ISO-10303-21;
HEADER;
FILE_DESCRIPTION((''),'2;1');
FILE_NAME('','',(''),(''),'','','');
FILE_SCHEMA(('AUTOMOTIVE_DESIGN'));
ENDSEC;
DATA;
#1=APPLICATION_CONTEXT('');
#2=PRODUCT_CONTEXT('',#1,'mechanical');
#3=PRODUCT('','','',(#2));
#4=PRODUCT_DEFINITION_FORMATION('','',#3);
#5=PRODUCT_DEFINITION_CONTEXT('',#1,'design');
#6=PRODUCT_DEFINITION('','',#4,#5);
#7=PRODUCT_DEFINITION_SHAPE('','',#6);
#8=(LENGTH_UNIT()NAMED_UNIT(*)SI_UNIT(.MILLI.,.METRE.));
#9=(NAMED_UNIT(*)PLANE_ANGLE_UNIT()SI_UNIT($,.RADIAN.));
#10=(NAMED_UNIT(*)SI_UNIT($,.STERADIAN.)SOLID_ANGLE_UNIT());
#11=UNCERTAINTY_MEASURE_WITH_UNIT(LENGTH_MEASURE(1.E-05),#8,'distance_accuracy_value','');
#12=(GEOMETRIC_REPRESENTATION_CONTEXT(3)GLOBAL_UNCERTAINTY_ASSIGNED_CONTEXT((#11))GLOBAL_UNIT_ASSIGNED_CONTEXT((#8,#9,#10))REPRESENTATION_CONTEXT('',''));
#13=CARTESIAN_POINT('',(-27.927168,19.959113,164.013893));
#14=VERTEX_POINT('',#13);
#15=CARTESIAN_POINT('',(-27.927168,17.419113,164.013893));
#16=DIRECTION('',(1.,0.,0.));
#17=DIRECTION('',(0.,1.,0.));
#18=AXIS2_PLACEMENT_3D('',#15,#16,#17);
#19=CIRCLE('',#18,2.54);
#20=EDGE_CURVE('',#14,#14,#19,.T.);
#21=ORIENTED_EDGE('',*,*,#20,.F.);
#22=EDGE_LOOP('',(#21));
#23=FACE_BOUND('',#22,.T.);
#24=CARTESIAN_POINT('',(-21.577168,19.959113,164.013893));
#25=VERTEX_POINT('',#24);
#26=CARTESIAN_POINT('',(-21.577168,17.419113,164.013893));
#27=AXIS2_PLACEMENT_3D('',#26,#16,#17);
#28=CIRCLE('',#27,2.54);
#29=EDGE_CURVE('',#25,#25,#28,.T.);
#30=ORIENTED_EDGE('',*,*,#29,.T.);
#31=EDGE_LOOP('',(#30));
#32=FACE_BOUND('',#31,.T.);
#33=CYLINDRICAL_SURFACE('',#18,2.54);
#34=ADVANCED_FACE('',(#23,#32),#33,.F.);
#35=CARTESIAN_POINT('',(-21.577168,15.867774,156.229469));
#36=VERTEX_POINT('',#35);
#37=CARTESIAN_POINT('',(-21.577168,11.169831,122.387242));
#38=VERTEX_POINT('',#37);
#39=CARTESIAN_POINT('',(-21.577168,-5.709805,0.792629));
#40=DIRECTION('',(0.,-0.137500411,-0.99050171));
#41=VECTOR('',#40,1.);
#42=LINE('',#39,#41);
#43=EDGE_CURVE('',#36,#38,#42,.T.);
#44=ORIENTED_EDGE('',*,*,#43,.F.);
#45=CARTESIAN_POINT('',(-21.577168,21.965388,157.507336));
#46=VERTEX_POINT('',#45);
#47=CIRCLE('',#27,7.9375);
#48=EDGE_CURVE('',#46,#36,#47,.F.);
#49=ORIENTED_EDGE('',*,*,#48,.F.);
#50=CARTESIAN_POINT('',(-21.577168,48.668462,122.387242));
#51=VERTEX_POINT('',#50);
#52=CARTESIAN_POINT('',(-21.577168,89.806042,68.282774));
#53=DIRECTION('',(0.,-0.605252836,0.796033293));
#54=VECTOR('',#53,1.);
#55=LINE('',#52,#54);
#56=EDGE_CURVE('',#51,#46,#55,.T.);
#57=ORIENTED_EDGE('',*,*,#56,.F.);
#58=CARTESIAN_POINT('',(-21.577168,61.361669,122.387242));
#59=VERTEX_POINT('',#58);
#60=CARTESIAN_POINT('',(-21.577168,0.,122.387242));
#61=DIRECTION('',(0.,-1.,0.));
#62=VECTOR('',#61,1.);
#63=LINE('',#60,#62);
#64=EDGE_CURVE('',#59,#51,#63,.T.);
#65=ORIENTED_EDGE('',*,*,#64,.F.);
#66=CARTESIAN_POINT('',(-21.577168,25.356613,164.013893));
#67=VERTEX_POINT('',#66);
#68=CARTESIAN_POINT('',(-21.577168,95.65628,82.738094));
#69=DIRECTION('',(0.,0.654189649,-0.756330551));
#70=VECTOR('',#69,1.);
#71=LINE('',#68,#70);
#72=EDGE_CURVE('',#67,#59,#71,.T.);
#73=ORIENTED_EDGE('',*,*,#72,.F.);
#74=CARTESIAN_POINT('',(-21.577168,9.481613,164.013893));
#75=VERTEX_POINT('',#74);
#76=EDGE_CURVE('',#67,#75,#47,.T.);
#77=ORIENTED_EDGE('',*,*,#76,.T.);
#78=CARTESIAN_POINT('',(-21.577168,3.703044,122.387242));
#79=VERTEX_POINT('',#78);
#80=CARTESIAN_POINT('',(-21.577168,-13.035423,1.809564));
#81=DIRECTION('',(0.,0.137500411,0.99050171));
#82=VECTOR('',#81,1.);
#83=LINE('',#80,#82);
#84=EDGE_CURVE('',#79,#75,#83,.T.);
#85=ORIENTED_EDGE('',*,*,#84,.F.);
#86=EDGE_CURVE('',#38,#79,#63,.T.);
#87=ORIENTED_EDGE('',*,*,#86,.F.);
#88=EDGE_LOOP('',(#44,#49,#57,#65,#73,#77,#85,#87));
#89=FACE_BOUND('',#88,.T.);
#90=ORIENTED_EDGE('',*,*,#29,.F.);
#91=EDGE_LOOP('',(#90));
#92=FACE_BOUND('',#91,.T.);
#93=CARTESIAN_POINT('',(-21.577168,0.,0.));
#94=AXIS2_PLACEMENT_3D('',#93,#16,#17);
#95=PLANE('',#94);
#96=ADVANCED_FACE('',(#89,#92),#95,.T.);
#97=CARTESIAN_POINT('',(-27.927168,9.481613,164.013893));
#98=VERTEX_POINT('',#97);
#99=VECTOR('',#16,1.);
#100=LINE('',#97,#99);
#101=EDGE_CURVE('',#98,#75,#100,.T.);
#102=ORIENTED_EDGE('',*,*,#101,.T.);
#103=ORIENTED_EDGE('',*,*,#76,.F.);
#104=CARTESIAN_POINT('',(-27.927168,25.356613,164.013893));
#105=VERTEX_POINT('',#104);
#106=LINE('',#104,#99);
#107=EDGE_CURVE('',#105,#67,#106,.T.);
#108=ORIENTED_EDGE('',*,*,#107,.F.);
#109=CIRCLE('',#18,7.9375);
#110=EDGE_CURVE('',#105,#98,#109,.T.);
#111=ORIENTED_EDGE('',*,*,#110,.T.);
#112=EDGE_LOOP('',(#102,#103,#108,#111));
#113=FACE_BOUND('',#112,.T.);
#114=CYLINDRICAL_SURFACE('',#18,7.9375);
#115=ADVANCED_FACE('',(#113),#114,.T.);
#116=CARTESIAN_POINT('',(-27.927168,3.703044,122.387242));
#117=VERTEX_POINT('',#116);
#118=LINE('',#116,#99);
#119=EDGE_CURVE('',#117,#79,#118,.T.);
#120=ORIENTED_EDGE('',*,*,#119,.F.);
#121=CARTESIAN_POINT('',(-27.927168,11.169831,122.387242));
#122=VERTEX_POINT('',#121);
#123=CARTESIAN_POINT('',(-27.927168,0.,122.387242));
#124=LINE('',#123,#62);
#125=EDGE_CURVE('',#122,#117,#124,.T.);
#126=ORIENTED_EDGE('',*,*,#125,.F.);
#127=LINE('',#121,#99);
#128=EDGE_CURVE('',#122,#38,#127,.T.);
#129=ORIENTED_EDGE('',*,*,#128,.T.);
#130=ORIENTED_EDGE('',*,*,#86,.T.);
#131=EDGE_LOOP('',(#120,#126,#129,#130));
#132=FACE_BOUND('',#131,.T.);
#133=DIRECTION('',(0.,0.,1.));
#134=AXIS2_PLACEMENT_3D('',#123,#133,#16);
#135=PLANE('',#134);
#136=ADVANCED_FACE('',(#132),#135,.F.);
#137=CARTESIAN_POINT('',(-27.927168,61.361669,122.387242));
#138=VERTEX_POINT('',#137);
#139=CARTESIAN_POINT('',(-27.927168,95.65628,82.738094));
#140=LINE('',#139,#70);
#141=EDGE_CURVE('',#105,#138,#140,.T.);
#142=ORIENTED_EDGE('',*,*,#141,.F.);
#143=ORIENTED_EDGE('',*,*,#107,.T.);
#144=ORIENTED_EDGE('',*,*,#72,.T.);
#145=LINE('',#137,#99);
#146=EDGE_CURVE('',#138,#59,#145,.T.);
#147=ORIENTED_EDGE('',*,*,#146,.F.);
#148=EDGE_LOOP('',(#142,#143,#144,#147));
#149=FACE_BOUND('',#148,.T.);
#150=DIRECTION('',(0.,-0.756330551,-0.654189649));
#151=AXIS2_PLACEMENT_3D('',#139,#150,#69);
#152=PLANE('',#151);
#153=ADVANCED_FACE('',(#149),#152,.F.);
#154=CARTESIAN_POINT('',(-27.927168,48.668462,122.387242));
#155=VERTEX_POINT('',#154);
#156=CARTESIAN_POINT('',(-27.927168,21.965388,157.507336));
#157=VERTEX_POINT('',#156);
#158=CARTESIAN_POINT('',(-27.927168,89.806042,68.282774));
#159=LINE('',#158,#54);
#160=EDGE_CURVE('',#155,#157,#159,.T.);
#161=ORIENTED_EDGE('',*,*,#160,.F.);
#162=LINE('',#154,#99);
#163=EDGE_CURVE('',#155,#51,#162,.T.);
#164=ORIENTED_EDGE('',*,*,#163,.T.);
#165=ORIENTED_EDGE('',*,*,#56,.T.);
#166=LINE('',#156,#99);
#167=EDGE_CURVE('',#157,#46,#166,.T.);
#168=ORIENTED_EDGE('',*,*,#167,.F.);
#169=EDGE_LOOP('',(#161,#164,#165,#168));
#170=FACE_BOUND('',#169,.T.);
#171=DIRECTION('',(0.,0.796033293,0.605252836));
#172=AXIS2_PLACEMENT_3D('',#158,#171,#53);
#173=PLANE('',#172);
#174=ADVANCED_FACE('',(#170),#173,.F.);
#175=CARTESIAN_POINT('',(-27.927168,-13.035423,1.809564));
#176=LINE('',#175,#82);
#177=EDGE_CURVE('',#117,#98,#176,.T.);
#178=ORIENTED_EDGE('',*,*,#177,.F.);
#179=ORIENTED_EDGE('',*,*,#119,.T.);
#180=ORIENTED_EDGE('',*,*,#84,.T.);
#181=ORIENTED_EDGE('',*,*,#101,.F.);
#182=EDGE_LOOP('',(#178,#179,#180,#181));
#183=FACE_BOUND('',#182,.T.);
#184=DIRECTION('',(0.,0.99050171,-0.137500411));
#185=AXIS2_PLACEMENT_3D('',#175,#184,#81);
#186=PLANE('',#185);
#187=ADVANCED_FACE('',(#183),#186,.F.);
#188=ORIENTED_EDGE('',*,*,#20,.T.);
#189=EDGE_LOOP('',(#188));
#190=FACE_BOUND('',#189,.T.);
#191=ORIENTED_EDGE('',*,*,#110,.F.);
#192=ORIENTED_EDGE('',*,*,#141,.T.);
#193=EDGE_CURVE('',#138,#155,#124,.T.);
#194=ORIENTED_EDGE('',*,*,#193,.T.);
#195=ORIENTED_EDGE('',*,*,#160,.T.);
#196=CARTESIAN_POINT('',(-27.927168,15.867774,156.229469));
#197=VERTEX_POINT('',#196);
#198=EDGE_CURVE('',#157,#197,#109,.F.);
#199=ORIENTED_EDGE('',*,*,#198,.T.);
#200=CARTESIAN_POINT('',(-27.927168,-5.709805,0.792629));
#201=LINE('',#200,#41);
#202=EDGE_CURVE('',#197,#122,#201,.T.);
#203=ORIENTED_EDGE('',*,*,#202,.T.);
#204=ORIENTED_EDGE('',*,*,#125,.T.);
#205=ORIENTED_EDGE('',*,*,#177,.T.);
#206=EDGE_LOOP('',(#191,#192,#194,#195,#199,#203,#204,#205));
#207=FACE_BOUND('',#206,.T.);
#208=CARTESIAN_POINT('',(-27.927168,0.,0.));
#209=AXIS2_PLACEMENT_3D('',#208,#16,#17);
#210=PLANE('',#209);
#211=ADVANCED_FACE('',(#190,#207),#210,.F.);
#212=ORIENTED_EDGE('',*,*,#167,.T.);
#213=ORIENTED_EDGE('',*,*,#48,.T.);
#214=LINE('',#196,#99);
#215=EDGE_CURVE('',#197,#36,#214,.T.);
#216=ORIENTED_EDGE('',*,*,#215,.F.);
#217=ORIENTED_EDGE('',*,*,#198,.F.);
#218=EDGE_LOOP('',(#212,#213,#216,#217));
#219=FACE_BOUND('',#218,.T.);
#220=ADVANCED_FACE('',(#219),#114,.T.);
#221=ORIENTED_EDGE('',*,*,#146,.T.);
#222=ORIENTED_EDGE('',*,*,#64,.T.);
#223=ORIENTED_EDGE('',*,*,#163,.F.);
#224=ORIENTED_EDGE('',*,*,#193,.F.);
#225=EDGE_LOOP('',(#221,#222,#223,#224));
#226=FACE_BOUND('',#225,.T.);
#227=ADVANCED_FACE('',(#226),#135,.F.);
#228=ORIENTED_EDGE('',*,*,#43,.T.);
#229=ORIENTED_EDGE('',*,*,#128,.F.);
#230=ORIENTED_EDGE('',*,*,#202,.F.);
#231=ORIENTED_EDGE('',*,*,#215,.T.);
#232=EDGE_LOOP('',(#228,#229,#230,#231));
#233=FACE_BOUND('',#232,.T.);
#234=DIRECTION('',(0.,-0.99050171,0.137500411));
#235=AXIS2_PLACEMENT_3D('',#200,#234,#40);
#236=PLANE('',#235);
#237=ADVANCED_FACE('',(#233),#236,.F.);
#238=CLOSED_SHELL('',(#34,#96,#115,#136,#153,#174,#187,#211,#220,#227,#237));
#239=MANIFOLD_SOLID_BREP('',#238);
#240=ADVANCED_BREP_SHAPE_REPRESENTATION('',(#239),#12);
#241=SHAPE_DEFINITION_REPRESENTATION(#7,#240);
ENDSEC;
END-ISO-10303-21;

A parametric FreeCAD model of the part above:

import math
import FreeCAD as App
import Part
import Sketcher
Q = App.Units.Quantity

doc = App.newDocument("Part")
body = doc.addObject("PartDesign::Body", "Body")

sketch1 = body.newObject("Sketcher::SketchObject", "Sketch")
sketch1.AttachmentSupport = (doc.getObject("YZ_Plane"), [""])
sketch1.MapMode = "FlatFace"
sketch1.AttachmentOffset = App.Placement(App.Vector(0, 0, -21.577168), App.Rotation())
sketch1.addGeometry([
    Part.LineSegment(App.Vector(61.361669, 122.387242, 0), App.Vector(25.356613, 164.013893, 0)),
    Part.ArcOfCircle(Part.Circle(App.Vector(17.419113, 164.013893, 0), App.Vector(0, 0, 1), 7.9375), math.radians(0), math.radians(180)),
    Part.LineSegment(App.Vector(9.481613, 164.013893, 0), App.Vector(3.703044, 122.387242, 0)),
    Part.LineSegment(App.Vector(3.703044, 122.387242, 0), App.Vector(11.169831, 122.387242, 0)),
    Part.LineSegment(App.Vector(11.169831, 122.387242, 0), App.Vector(15.867774, 156.229469, 0)),
    Part.ArcOfCircle(Part.Circle(App.Vector(17.419113, 164.013893, 0), App.Vector(0, 0, 1), 7.9375), math.radians(-101.270676), math.radians(-55.057151)),
    Part.LineSegment(App.Vector(21.965388, 157.507336, 0), App.Vector(48.668462, 122.387242, 0)),
    Part.LineSegment(App.Vector(48.668462, 122.387242, 0), App.Vector(61.361669, 122.387242, 0)),
    Part.Circle(App.Vector(17.419113, 164.013893, 0), App.Vector(0, 0, 1), 2.54),
], False)
sketch1.addConstraint([
    Sketcher.Constraint("Coincident", 0, 2, 1, 1),
    Sketcher.Constraint("Coincident", 1, 2, 2, 1),
    Sketcher.Constraint("Coincident", 2, 2, 3, 1),
    Sketcher.Constraint("Coincident", 3, 2, 4, 1),
    Sketcher.Constraint("Coincident", 4, 2, 5, 1),
    Sketcher.Constraint("Coincident", 5, 2, 6, 1),
    Sketcher.Constraint("Coincident", 6, 2, 7, 1),
    Sketcher.Constraint("Coincident", 7, 2, 0, 1),
    Sketcher.Constraint("Horizontal", 3),
    Sketcher.Constraint("Horizontal", 7),
    Sketcher.Constraint("Coincident", 5, 3, 1, 3),
    Sketcher.Constraint("Coincident", 8, 3, 1, 3),
    Sketcher.Constraint("Equal", 1, 5),
    Sketcher.Constraint("Parallel", 2, 4),
    Sketcher.Constraint("Horizontal", 8, 3, 0, 2),
    Sketcher.Constraint("Horizontal", 0, 2, 1, 2),
    Sketcher.Constraint("Horizontal", 3, 2, 6, 2),
    Sketcher.Constraint("Diameter", 8, Q("0.2 in")),
    Sketcher.Constraint("Radius", 1, Q("0.3125 in")),
    Sketcher.Constraint("DistanceX", 3, 1, 3, 2, 7.466787),
    Sketcher.Constraint("DistanceX", 7, 1, 7, 2, 12.693207),
    Sketcher.Constraint("DistanceY", -1, 1, 2, 2, 122.387242),
    Sketcher.Constraint("DistanceX", -1, 1, 3, 2, 11.169831),
    Sketcher.Constraint("DistanceY", -1, 1, 4, 2, 156.229469),
    Sketcher.Constraint("DistanceX", -1, 1, 7, 2, 61.361669),
    Sketcher.Constraint("DistanceX", 2, 2, 1, 2, 5.778568),
    Sketcher.Constraint("DistanceX", 5, 2, 7, 2, 39.396282),
])
pad1 = body.newObject("PartDesign::Pad", "Pad")
pad1.Profile = sketch1
pad1.Length = Q("0.25 in")
pad1.Reversed = True

doc.recompute()
